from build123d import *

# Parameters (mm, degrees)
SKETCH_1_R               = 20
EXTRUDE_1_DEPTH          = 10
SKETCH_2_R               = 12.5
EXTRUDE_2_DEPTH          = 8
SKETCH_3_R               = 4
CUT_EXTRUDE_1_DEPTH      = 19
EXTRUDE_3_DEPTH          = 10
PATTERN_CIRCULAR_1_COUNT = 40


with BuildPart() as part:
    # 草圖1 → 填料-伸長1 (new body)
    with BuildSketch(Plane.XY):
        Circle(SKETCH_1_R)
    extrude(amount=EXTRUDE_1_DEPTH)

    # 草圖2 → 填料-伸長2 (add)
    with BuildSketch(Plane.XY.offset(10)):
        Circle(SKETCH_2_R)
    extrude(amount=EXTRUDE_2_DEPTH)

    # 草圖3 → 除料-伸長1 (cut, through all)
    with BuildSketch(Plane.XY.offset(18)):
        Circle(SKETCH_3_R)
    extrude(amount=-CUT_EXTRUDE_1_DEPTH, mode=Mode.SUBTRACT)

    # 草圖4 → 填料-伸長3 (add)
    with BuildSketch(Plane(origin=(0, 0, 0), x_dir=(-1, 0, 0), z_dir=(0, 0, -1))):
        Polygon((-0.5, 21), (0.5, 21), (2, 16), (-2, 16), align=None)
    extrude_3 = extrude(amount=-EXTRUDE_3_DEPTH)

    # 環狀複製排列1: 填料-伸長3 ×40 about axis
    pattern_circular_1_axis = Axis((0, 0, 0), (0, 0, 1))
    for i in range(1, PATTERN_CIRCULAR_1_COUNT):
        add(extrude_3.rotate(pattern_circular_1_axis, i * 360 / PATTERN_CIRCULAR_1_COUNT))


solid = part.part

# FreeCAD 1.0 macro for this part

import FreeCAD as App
import Part
import Sketcher
from FreeCAD import Vector

doc = App.newDocument("Part")
body = doc.addObject("PartDesign::Body", "Body")

sketch1 = body.newObject("Sketcher::SketchObject", "Sketch")
sketch1.AttachmentSupport = (doc.getObject("XY_Plane"), [""])
sketch1.MapMode = "FlatFace"
sketch1.addGeometry(Part.Circle(Vector(0, 0, 0), Vector(0, 0, 1), 20), False)
sketch1.addConstraint([
    Sketcher.Constraint("Coincident", 0, 3, -1, 1),
    Sketcher.Constraint("Diameter", 0, 40.0),
])
pad1 = body.newObject("PartDesign::Pad", "Pad")
pad1.Profile = sketch1
pad1.Length = 10

sketch2 = body.newObject("Sketcher::SketchObject", "Sketch001")
sketch2.AttachmentSupport = (doc.getObject("XY_Plane"), [""])
sketch2.MapMode = "FlatFace"
sketch2.AttachmentOffset = App.Placement(Vector(0, 0, 10), App.Rotation())
sketch2.addGeometry(Part.Circle(Vector(0, 0, 0), Vector(0, 0, 1), 12), False)
sketch2.addConstraint([
    Sketcher.Constraint("Coincident", 0, 3, -1, 1),
    Sketcher.Constraint("Diameter", 0, 25.0),
])
pad2 = body.newObject("PartDesign::Pad", "Pad001")
pad2.Profile = sketch2
pad2.Length = 8

sketch3 = body.newObject("Sketcher::SketchObject", "Sketch002")
sketch3.AttachmentSupport = (doc.getObject("XY_Plane"), [""])
sketch3.MapMode = "FlatFace"
sketch3.AttachmentOffset = App.Placement(Vector(0, 0, 18), App.Rotation())
sketch3.addGeometry(Part.Circle(Vector(0, 0, 0), Vector(0, 0, 1), 4), False)
sketch3.addConstraint([
    Sketcher.Constraint("Coincident", 0, 3, -1, 1),
    Sketcher.Constraint("Diameter", 0, 8.0),
])
pocket1 = body.newObject("PartDesign::Pocket", "Pocket")
pocket1.Profile = sketch3
pocket1.Type = "ThroughAll"

sketch4 = body.newObject("Sketcher::SketchObject", "Sketch003")
sketch4.AttachmentSupport = (doc.getObject("XY_Plane"), [""])
sketch4.MapMode = "FlatFace"
sketch4.addGeometry([
    Part.LineSegment(Vector(-0.5, 21, 0), Vector(0.5, 21, 0)),
    Part.LineSegment(Vector(0.5, 21, 0), Vector(2, 16, 0)),
    Part.LineSegment(Vector(2, 16, 0), Vector(-2, 16, 0)),
    Part.LineSegment(Vector(-2, 16, 0), Vector(-0.5, 21, 0)),
], False)
sketch4.addConstraint([
    Sketcher.Constraint("Coincident", 0, 2, 1, 1),
    Sketcher.Constraint("Coincident", 1, 2, 2, 1),
    Sketcher.Constraint("Coincident", 2, 2, 3, 1),
    Sketcher.Constraint("Coincident", 3, 2, 0, 1),
    Sketcher.Constraint("Horizontal", 0),
    Sketcher.Constraint("Horizontal", 2),
    Sketcher.Constraint("Equal", 1, 3),
    Sketcher.Constraint("DistanceX", 0, 1, 0, 2, 1.0),
    Sketcher.Constraint("DistanceX", 2, 2, 2, 1, 4.0),
    Sketcher.Constraint("DistanceY", -1, 1, 0, 2, 21.0),
    Sketcher.Constraint("DistanceX", -1, 1, 1, 2, 2.0),
    Sketcher.Constraint("DistanceY", -1, 1, 1, 2, 16.0),
])
pad3 = body.newObject("PartDesign::Pad", "Pad002")
pad3.Profile = sketch4
pad3.Length = 10
doc.recompute()

polarpattern = body.newObject("PartDesign::PolarPattern", "PolarPattern")
polarpattern.Originals = [pad3]
polarpattern.Axis = (doc.getObject("Z_Axis"), [""])
polarpattern.Angle = 360
polarpattern.Occurrences = 40
body.Tip = polarpattern

doc.recompute()
